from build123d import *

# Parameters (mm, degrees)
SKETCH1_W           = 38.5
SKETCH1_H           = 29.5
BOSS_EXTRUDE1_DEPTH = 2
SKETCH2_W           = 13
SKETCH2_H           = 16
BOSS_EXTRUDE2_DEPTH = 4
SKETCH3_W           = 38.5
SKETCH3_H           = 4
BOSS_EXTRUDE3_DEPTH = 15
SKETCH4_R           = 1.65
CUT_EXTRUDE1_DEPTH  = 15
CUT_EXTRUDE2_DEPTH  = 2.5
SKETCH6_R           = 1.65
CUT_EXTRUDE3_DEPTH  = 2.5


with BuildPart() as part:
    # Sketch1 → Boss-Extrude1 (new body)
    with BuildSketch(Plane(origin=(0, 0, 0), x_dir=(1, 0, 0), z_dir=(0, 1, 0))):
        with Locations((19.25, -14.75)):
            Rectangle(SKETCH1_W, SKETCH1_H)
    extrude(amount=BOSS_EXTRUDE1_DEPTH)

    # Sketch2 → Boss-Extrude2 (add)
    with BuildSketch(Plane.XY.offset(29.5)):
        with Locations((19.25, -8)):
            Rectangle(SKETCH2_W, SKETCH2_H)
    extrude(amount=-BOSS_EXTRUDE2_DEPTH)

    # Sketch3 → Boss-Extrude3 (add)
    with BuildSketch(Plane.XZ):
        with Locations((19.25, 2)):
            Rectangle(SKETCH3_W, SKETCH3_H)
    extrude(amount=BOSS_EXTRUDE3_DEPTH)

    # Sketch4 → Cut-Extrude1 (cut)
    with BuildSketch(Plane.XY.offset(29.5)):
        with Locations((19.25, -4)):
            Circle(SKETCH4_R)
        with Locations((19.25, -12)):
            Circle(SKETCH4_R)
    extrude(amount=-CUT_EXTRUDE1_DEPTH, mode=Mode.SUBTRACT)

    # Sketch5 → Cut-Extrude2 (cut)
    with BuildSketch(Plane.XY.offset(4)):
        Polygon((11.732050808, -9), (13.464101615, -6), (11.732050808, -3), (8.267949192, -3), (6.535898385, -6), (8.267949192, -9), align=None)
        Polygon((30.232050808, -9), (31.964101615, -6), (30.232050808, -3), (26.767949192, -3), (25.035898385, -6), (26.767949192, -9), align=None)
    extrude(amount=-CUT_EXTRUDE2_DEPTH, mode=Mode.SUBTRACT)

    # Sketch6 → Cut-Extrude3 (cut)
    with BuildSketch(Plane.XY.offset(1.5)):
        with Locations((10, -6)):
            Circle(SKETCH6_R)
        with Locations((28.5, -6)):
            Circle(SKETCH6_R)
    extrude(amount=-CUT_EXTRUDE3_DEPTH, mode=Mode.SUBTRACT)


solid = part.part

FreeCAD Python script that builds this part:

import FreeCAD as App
import Part
import Sketcher

V = App.Vector
Q = App.Units.Quantity


def add_polygon(sketch, points):
    """Adds a closed chain of lines whose ends are joined by coincident constraints."""
    first, n = sketch.GeometryCount, len(points)
    for a, b in zip(points, points[1:] + points[:1]):
        sketch.addGeometry(Part.LineSegment(App.Vector(*a, 0), App.Vector(*b, 0)), False)
    for i in range(n):
        sketch.addConstraint(Sketcher.Constraint("Coincident", first + i, 2, first + (i + 1) % n, 1))

doc = App.newDocument("Part")
body = doc.addObject("PartDesign::Body", "Body")

sketch1 = body.newObject("Sketcher::SketchObject", "Sketch")
sketch1.AttachmentSupport = (doc.getObject("XZ_Plane"), [""])
sketch1.MapMode = "FlatFace"
add_polygon(sketch1, [(0, 0), (0, 29.5), (38.5, 29.5), (38.5, 0)])
sketch1.addConstraint([
    Sketcher.Constraint("Vertical", 0),
    Sketcher.Constraint("Horizontal", 1),
    Sketcher.Constraint("Vertical", 2),
    Sketcher.Constraint("Horizontal", 3),
    Sketcher.Constraint("Coincident", 3, 2, -1, 1),
    Sketcher.Constraint("DistanceX", 1, 1, 1, 2, 38.5),
    Sketcher.Constraint("DistanceY", 0, 1, 0, 2, 29.5),
])
pad1 = body.newObject("PartDesign::Pad", "Pad")
pad1.Profile = sketch1
pad1.Length = 2
pad1.Reversed = True

sketch2 = body.newObject("Sketcher::SketchObject", "Sketch001")
sketch2.AttachmentSupport = (doc.getObject("XY_Plane"), [""])
sketch2.MapMode = "FlatFace"
sketch2.AttachmentOffset = App.Placement(V(0, 0, 29.5), App.Rotation())
add_polygon(sketch2, [(12.75, 0), (12.75, -16), (25.75, -16), (25.75, 0)])
sketch2.addConstraint([
    Sketcher.Constraint("Vertical", 0),
    Sketcher.Constraint("Horizontal", 1),
    Sketcher.Constraint("Vertical", 2),
    Sketcher.Constraint("Horizontal", 3),
    Sketcher.Constraint("PointOnObject", 2, 2, -1),
    Sketcher.Constraint("DistanceX", 1, 1, 1, 2, 13.0),
    Sketcher.Constraint("DistanceY", 0, 2, 0, 1, 16.0),
    Sketcher.Constraint("DistanceX", -1, 1, 0, 2, 12.75),
])
pad2 = body.newObject("PartDesign::Pad", "Pad001")
pad2.Profile = sketch2
pad2.Length = 4
pad2.Reversed = True

sketch3 = body.newObject("Sketcher::SketchObject", "Sketch002")
sketch3.AttachmentSupport = (doc.getObject("XZ_Plane"), [""])
sketch3.MapMode = "FlatFace"
add_polygon(sketch3, [(0, 4), (0, 0), (38.5, 0), (38.5, 4)])
sketch3.addConstraint([
    Sketcher.Constraint("Vertical", 0),
    Sketcher.Constraint("Horizontal", 1),
    Sketcher.Constraint("Vertical", 2),
    Sketcher.Constraint("Horizontal", 3),
    Sketcher.Constraint("Coincident", 0, 2, -1, 1),
    Sketcher.Constraint("DistanceY", 0, 2, 0, 1, 4.0),
    Sketcher.Constraint("DistanceX", 1, 1, 1, 2, 38.5),
])
pad3 = body.newObject("PartDesign::Pad", "Pad002")
pad3.Profile = sketch3
pad3.Length = 15

sketch4 = body.newObject("Sketcher::SketchObject", "Sketch003")
sketch4.AttachmentSupport = (doc.getObject("XY_Plane"), [""])
sketch4.MapMode = "FlatFace"
sketch4.AttachmentOffset = App.Placement(V(0, 0, 29.5), App.Rotation())
sketch4.addGeometry([
    Part.Circle(V(19.25, -4, 0), V(0, 0, 1), 1.65),
    Part.Circle(V(19.25, -12, 0), V(0, 0, 1), 1.65),
], False)
sketch4.addConstraint([
    Sketcher.Constraint("Equal", 0, 1),
    Sketcher.Constraint("Vertical", 0, 3, 1, 3),
    Sketcher.Constraint("Diameter", 0, 3.3),
    Sketcher.Constraint("DistanceY", 0, 3, -1, 1, 4.0),
    Sketcher.Constraint("DistanceY", 1, 3, -1, 1, 12.0),
    Sketcher.Constraint("DistanceX", -1, 1, 0, 3, 19.25),
])
pocket1 = body.newObject("PartDesign::Pocket", "Pocket")
pocket1.Profile = sketch4
pocket1.Length = 15

sketch5 = body.newObject("Sketcher::SketchObject", "Sketch004")
sketch5.AttachmentSupport = (doc.getObject("XY_Plane"), [""])
sketch5.MapMode = "FlatFace"
sketch5.AttachmentOffset = App.Placement(V(0, 0, 4), App.Rotation())
add_polygon(sketch5, [(11.732051, -9), (13.464102, -6), (11.732051, -3), (8.267949, -3), (6.535898, -6), (8.267949, -9)])
add_polygon(sketch5, [(30.232051, -9), (31.964102, -6), (30.232051, -3), (26.767949, -3), (25.035898, -6), (26.767949, -9)])
sketch5.addConstraint([
    Sketcher.Constraint("Horizontal", 2),
    Sketcher.Constraint("Horizontal", 5),
    Sketcher.Constraint("Horizontal", 8),
    Sketcher.Constraint("Horizontal", 11),
    Sketcher.Constraint("Parallel", 0, 3),
    Sketcher.Constraint("Parallel", 1, 4),
    Sketcher.Constraint("Parallel", 3, 6),
    Sketcher.Constraint("Parallel", 4, 7),
    Sketcher.Constraint("Parallel", 6, 9),
    Sketcher.Constraint("Parallel", 7, 10),
    Sketcher.Constraint("Horizontal", 0, 2, 3, 2),
    Sketcher.Constraint("Horizontal", 3, 2, 6, 2),
    Sketcher.Constraint("Horizontal", 2, 2, 7, 2),
    Sketcher.Constraint("Horizontal", 6, 2, 9, 2),
    Sketcher.Constraint("Horizontal", 5, 2, 10, 2),
    Sketcher.Constraint("Vertical", 2, 2, 4, 2),
    Sketcher.Constraint("Vertical", 1, 2, 5, 2),
    Sketcher.Constraint("Equal", 5, 8),
    Sketcher.Constraint("Angle", 0, Q("60 deg")),
    Sketcher.Constraint("DistanceY", 0, 2, -1, 1, 6.0),
    Sketcher.Constraint("DistanceY", 1, 2, -1, 1, 3.0),
    Sketcher.Constraint("DistanceX", 0, 2, 6, 2, 18.5),
    Sketcher.Constraint("DistanceX", 2, 2, 2, 1, 3.464102),
    Sketcher.Constraint("DistanceX", -1, 1, 0, 2, 13.464102),
])
pocket2 = body.newObject("PartDesign::Pocket", "Pocket001")
pocket2.Profile = sketch5
pocket2.Length = 2.5

sketch6 = body.newObject("Sketcher::SketchObject", "Sketch005")
sketch6.AttachmentSupport = (doc.getObject("XY_Plane"), [""])
sketch6.MapMode = "FlatFace"
sketch6.AttachmentOffset = App.Placement(V(0, 0, 1.5), App.Rotation())
sketch6.addGeometry([
    Part.Circle(V(10, -6, 0), V(0, 0, 1), 1.65),
    Part.Circle(V(28.5, -6, 0), V(0, 0, 1), 1.65),
], False)
sketch6.addConstraint([
    Sketcher.Constraint("Equal", 0, 1),
    Sketcher.Constraint("Horizontal", 0, 3, 1, 3),
    Sketcher.Constraint("Diameter", 0, 3.3),
    Sketcher.Constraint("DistanceX", -1, 1, 0, 3, 10.0),
    Sketcher.Constraint("DistanceY", 0, 3, -1, 1, 6.0),
    Sketcher.Constraint("DistanceX", -1, 1, 1, 3, 28.5),
])
pocket3 = body.newObject("PartDesign::Pocket", "Pocket002")
pocket3.Profile = sketch6
pocket3.Length = 2.5

doc.recompute()
